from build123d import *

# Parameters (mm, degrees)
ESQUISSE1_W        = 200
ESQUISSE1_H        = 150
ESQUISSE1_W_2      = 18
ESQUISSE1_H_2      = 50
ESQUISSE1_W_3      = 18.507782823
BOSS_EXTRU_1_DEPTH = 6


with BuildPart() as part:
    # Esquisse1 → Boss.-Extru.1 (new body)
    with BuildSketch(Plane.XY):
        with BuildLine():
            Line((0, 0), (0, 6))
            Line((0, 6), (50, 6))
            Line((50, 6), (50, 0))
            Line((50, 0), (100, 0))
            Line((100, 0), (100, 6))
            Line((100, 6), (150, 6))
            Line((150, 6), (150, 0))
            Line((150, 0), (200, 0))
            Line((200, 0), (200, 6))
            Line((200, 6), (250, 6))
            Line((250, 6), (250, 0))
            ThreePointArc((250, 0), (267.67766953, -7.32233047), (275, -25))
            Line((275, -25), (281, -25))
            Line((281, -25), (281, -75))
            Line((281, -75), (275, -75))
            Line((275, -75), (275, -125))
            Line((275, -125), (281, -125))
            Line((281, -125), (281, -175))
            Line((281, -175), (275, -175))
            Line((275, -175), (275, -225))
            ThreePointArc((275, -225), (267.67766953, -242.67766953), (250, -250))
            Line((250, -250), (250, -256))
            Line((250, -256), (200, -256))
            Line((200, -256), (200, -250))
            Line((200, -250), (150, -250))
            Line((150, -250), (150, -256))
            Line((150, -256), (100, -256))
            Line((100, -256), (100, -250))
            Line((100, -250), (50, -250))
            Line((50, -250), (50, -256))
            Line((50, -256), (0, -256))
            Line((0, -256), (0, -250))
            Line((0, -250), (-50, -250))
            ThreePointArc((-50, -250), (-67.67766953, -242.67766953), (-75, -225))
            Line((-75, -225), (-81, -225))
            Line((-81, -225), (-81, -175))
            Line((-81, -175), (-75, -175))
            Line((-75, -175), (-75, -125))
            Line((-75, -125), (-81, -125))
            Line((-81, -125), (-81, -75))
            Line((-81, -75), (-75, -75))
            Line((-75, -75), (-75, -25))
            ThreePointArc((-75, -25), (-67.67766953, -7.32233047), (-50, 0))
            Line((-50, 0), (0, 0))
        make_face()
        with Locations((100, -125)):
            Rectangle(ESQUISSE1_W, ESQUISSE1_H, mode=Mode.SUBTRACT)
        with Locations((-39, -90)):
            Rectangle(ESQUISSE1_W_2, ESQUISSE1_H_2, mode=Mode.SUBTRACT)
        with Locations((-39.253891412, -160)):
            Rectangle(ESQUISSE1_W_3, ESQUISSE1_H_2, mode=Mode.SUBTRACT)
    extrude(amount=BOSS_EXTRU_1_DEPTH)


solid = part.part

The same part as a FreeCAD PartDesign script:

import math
import FreeCAD as App
import Part
import Sketcher
from FreeCAD import Vector

doc = App.newDocument("Part")
body = doc.addObject("PartDesign::Body", "Body")

# Sketch on XY plane
sketch1 = body.newObject("Sketcher::SketchObject", "Sketch")
sketch1.AttachmentSupport = (doc.getObject("XY_Plane"), [""])
sketch1.MapMode = "FlatFace"
sketch1.addGeometry([
    Part.LineSegment(Vector(0, 6, 0), Vector(0, 0, 0)),  # 0
    Part.LineSegment(Vector(0, 0, 0), Vector(-50, 0, 0)),  # 1
    Part.ArcOfCircle(Part.Circle(Vector(-50, -25, 0), Vector(0, 0, 1), 25), math.radians(90), math.radians(180)),  # 2
    Part.LineSegment(Vector(-75, -25, 0), Vector(-75, -75, 0)),  # 3
    Part.LineSegment(Vector(-75, -75, 0), Vector(-81, -75, 0)),  # 4
    Part.LineSegment(Vector(-81, -75, 0), Vector(-81, -125, 0)),  # 5
    Part.LineSegment(Vector(-81, -125, 0), Vector(-75, -125, 0)),  # 6
    Part.LineSegment(Vector(-75, -125, 0), Vector(-75, -175, 0)),  # 7
    Part.LineSegment(Vector(-75, -175, 0), Vector(-81, -175, 0)),  # 8
    Part.LineSegment(Vector(-81, -175, 0), Vector(-81, -225, 0)),  # 9
    Part.LineSegment(Vector(-81, -225, 0), Vector(-75, -225, 0)),  # 10
    Part.ArcOfCircle(Part.Circle(Vector(-50, -225, 0), Vector(0, 0, 1), 25), math.radians(180), math.radians(270)),  # 11
    Part.LineSegment(Vector(-50, -250, 0), Vector(0, -250, 0)),  # 12
    Part.LineSegment(Vector(0, -250, 0), Vector(0, -256, 0)),  # 13
    Part.LineSegment(Vector(0, -256, 0), Vector(50, -256, 0)),  # 14
    Part.LineSegment(Vector(50, -256, 0), Vector(50, -250, 0)),  # 15
    Part.LineSegment(Vector(50, -250, 0), Vector(100, -250, 0)),  # 16
    Part.LineSegment(Vector(100, -250, 0), Vector(100, -256, 0)),  # 17
    Part.LineSegment(Vector(100, -256, 0), Vector(150, -256, 0)),  # 18
    Part.LineSegment(Vector(150, -256, 0), Vector(150, -250, 0)),  # 19
    Part.LineSegment(Vector(150, -250, 0), Vector(200, -250, 0)),  # 20
    Part.LineSegment(Vector(200, -250, 0), Vector(200, -256, 0)),  # 21
    Part.LineSegment(Vector(200, -256, 0), Vector(250, -256, 0)),  # 22
    Part.LineSegment(Vector(250, -256, 0), Vector(250, -250, 0)),  # 23
    Part.ArcOfCircle(Part.Circle(Vector(250, -225, 0), Vector(0, 0, 1), 25), math.radians(-90), math.radians(0)),  # 24
    Part.LineSegment(Vector(275, -225, 0), Vector(275, -175, 0)),  # 25
    Part.LineSegment(Vector(275, -175, 0), Vector(281, -175, 0)),  # 26
    Part.LineSegment(Vector(281, -175, 0), Vector(281, -125, 0)),  # 27
    Part.LineSegment(Vector(281, -125, 0), Vector(275, -125, 0)),  # 28
    Part.LineSegment(Vector(275, -125, 0), Vector(275, -75, 0)),  # 29
    Part.LineSegment(Vector(275, -75, 0), Vector(281, -75, 0)),  # 30
    Part.LineSegment(Vector(281, -75, 0), Vector(281, -25, 0)),  # 31
    Part.LineSegment(Vector(281, -25, 0), Vector(275, -25, 0)),  # 32
    Part.ArcOfCircle(Part.Circle(Vector(250, -25, 0), Vector(0, 0, 1), 25), math.radians(0), math.radians(90)),  # 33
    Part.LineSegment(Vector(250, 0, 0), Vector(250, 6, 0)),  # 34
    Part.LineSegment(Vector(250, 6, 0), Vector(200, 6, 0)),  # 35
    Part.LineSegment(Vector(200, 6, 0), Vector(200, 0, 0)),  # 36
    Part.LineSegment(Vector(200, 0, 0), Vector(150, 0, 0)),  # 37
    Part.LineSegment(Vector(150, 0, 0), Vector(150, 6, 0)),  # 38
    Part.LineSegment(Vector(150, 6, 0), Vector(100, 6, 0)),  # 39
    Part.LineSegment(Vector(100, 6, 0), Vector(100, 0, 0)),  # 40
    Part.LineSegment(Vector(100, 0, 0), Vector(50, 0, 0)),  # 41
    Part.LineSegment(Vector(50, 0, 0), Vector(50, 6, 0)),  # 42
    Part.LineSegment(Vector(50, 6, 0), Vector(0, 6, 0)),  # 43
    Part.LineSegment(Vector(-49, -185, 0), Vector(-49, -135, 0)),  # 44
    Part.LineSegment(Vector(-49, -135, 0), Vector(-30, -135, 0)),  # 45
    Part.LineSegment(Vector(-30, -135, 0), Vector(-30, -185, 0)),  # 46
    Part.LineSegment(Vector(-30, -185, 0), Vector(-49, -185, 0)),  # 47
    Part.LineSegment(Vector(0, -200, 0), Vector(0, -50, 0)),  # 48
    Part.LineSegment(Vector(0, -50, 0), Vector(200, -50, 0)),  # 49
    Part.LineSegment(Vector(200, -50, 0), Vector(200, -200, 0)),  # 50
    Part.LineSegment(Vector(200, -200, 0), Vector(0, -200, 0)),  # 51
    Part.LineSegment(Vector(-48, -115, 0), Vector(-48, -65, 0)),  # 52
    Part.LineSegment(Vector(-48, -65, 0), Vector(-30, -65, 0)),  # 53
    Part.LineSegment(Vector(-30, -65, 0), Vector(-30, -115, 0)),  # 54
    Part.LineSegment(Vector(-30, -115, 0), Vector(-48, -115, 0)),  # 55
], False)
sketch1.addConstraint([
    Sketcher.Constraint("Coincident", 0, 2, 1, 1),
    Sketcher.Constraint("Tangent", 1, 2, 2, 1),
    Sketcher.Constraint("Tangent", 2, 2, 3, 1),
    Sketcher.Constraint("Coincident", 3, 2, 4, 1),
    Sketcher.Constraint("Coincident", 4, 2, 5, 1),
    Sketcher.Constraint("Coincident", 5, 2, 6, 1),
    Sketcher.Constraint("Coincident", 6, 2, 7, 1),
    Sketcher.Constraint("Coincident", 7, 2, 8, 1),
    Sketcher.Constraint("Coincident", 8, 2, 9, 1),
    Sketcher.Constraint("Coincident", 9, 2, 10, 1),
    Sketcher.Constraint("Coincident", 10, 2, 11, 1),
    Sketcher.Constraint("Tangent", 11, 2, 12, 1),
    Sketcher.Constraint("Coincident", 12, 2, 13, 1),
    Sketcher.Constraint("Coincident", 13, 2, 14, 1),
    Sketcher.Constraint("Coincident", 14, 2, 15, 1),
    Sketcher.Constraint("Coincident", 15, 2, 16, 1),
    Sketcher.Constraint("Coincident", 16, 2, 17, 1),
    Sketcher.Constraint("Coincident", 17, 2, 18, 1),
    Sketcher.Constraint("Coincident", 18, 2, 19, 1),
    Sketcher.Constraint("Coincident", 19, 2, 20, 1),
    Sketcher.Constraint("Coincident", 20, 2, 21, 1),
    Sketcher.Constraint("Coincident", 21, 2, 22, 1),
    Sketcher.Constraint("Coincident", 22, 2, 23, 1),
    Sketcher.Constraint("Coincident", 23, 2, 24, 1),
    Sketcher.Constraint("Tangent", 24, 2, 25, 1),
    Sketcher.Constraint("Coincident", 25, 2, 26, 1),
    Sketcher.Constraint("Coincident", 26, 2, 27, 1),
    Sketcher.Constraint("Coincident", 27, 2, 28, 1),
    Sketcher.Constraint("Coincident", 28, 2, 29, 1),
    Sketcher.Constraint("Coincident", 29, 2, 30, 1),
    Sketcher.Constraint("Coincident", 30, 2, 31, 1),
    Sketcher.Constraint("Coincident", 31, 2, 32, 1),
    Sketcher.Constraint("Coincident", 32, 2, 33, 1),
    Sketcher.Constraint("Coincident", 33, 2, 34, 1),
    Sketcher.Constraint("Coincident", 34, 2, 35, 1),
    Sketcher.Constraint("Coincident", 35, 2, 36, 1),
    Sketcher.Constraint("Coincident", 36, 2, 37, 1),
    Sketcher.Constraint("Coincident", 37, 2, 38, 1),
    Sketcher.Constraint("Coincident", 38, 2, 39, 1),
    Sketcher.Constraint("Coincident", 39, 2, 40, 1),
    Sketcher.Constraint("Coincident", 40, 2, 41, 1),
    Sketcher.Constraint("Coincident", 41, 2, 42, 1),
    Sketcher.Constraint("Coincident", 42, 2, 43, 1),
    Sketcher.Constraint("Coincident", 43, 2, 0, 1),
    Sketcher.Constraint("Coincident", 44, 2, 45, 1),
    Sketcher.Constraint("Coincident", 45, 2, 46, 1),
    Sketcher.Constraint("Coincident", 46, 2, 47, 1),
    Sketcher.Constraint("Coincident", 47, 2, 44, 1),
    Sketcher.Constraint("Coincident", 48, 2, 49, 1),
    Sketcher.Constraint("Coincident", 49, 2, 50, 1),
    Sketcher.Constraint("Coincident", 50, 2, 51, 1),
    Sketcher.Constraint("Coincident", 51, 2, 48, 1),
    Sketcher.Constraint("Coincident", 52, 2, 53, 1),
    Sketcher.Constraint("Coincident", 53, 2, 54, 1),
    Sketcher.Constraint("Coincident", 54, 2, 55, 1),
    Sketcher.Constraint("Coincident", 55, 2, 52, 1),
    Sketcher.Constraint("Vertical", 0),
    Sketcher.Constraint("Horizontal", 1),
    Sketcher.Constraint("Vertical", 3),
    Sketcher.Constraint("Horizontal", 4),
    Sketcher.Constraint("Vertical", 5),
    Sketcher.Constraint("Horizontal", 6),
    Sketcher.Constraint("Vertical", 7),
    Sketcher.Constraint("Horizontal", 8),
    Sketcher.Constraint("Vertical", 9),
    Sketcher.Constraint("Horizontal", 10),
    Sketcher.Constraint("Horizontal", 12),
    Sketcher.Constraint("Vertical", 13),
    Sketcher.Constraint("Horizontal", 14),
    Sketcher.Constraint("Vertical", 15),
    Sketcher.Constraint("Horizontal", 16),
    Sketcher.Constraint("Vertical", 17),
    Sketcher.Constraint("Horizontal", 18),
    Sketcher.Constraint("Vertical", 19),
    Sketcher.Constraint("Horizontal", 20),
    Sketcher.Constraint("Vertical", 21),
    Sketcher.Constraint("Horizontal", 22),
    Sketcher.Constraint("Vertical", 23),
    Sketcher.Constraint("Vertical", 25),
    Sketcher.Constraint("Horizontal", 26),
    Sketcher.Constraint("Vertical", 27),
    Sketcher.Constraint("Horizontal", 28),
    Sketcher.Constraint("Vertical", 29),
    Sketcher.Constraint("Horizontal", 30),
    Sketcher.Constraint("Vertical", 31),
    Sketcher.Constraint("Horizontal", 32),
    Sketcher.Constraint("Vertical", 34),
    Sketcher.Constraint("Horizontal", 35),
    Sketcher.Constraint("Vertical", 36),
    Sketcher.Constraint("Horizontal", 37),
    Sketcher.Constraint("Vertical", 38),
    Sketcher.Constraint("Horizontal", 39),
    Sketcher.Constraint("Vertical", 40),
    Sketcher.Constraint("Horizontal", 41),
    Sketcher.Constraint("Vertical", 42),
    Sketcher.Constraint("Horizontal", 43),
    Sketcher.Constraint("Vertical", 44),
    Sketcher.Constraint("Horizontal", 45),
    Sketcher.Constraint("Vertical", 46),
    Sketcher.Constraint("Horizontal", 47),
    Sketcher.Constraint("Vertical", 48),
    Sketcher.Constraint("Horizontal", 49),
    Sketcher.Constraint("Vertical", 50),
    Sketcher.Constraint("Horizontal", 51),
    Sketcher.Constraint("Vertical", 52),
    Sketcher.Constraint("Horizontal", 53),
    Sketcher.Constraint("Vertical", 54),
    Sketcher.Constraint("Horizontal", 55),
    Sketcher.Constraint("Coincident", 0, 2, -1, 1),
    Sketcher.Constraint("Equal", 2, 11),
    Sketcher.Constraint("Equal", 11, 24),
    Sketcher.Constraint("Equal", 24, 33),
    Sketcher.Constraint("Symmetric", 1, 2, 41, 2, -1, 1),
    Sketcher.Constraint("Symmetric", 11, 2, 15, 2, -2),
    Sketcher.Constraint("PointOnObject", 12, 2, -2),
    Sketcher.Constraint("PointOnObject", 33, 2, -1),
    Sketcher.Constraint("PointOnObject", 36, 2, -1),
    Sketcher.Constraint("PointOnObject", 48, 2, -2),
    Sketcher.Constraint("Horizontal", 11, 3, 24, 3),
    Sketcher.Constraint("Horizontal", 24, 3, 9, 2),
    Sketcher.Constraint("Horizontal", 14, 2, 17, 2),
    Sketcher.Constraint("Horizontal", 16, 2, 19, 2),
    Sketcher.Constraint("Horizontal", 18, 2, 21, 2),
    Sketcher.Constraint("Horizontal", 8, 2, 25, 2),
    Sketcher.Constraint("Horizontal", 6, 2, 27, 2),
    Sketcher.Constraint("Horizontal", 4, 2, 29, 2),
    Sketcher.Constraint("Horizontal", 2, 2, 31, 2),
    Sketcher.Constraint("Horizontal", 35, 2, 38, 2),
    Sketcher.Constraint("Horizontal", 39, 2, 42, 2),
    Sketcher.Constraint("Vertical", 2, 3, 11, 3),
    Sketcher.Constraint("Vertical", 24, 3, 33, 3),
    Sketcher.Constraint("Vertical", 3, 2, 6, 2),
    Sketcher.Constraint("Vertical", 5, 2, 8, 2),
    Sketcher.Constraint("Vertical", 33, 3, 22, 2),
    Sketcher.Constraint("Vertical", 25, 2, 28, 2),
    Sketcher.Constraint("Vertical", 27, 2, 30, 2),
    Sketcher.Constraint("Vertical", 23, 2, 33, 2),
    Sketcher.Constraint("Vertical", 21, 2, 35, 2),
    Sketcher.Constraint("Vertical", 19, 2, 37, 2),
    Sketcher.Constraint("Vertical", 17, 2, 39, 2),
    Sketcher.Constraint("Vertical", 36, 2, 49, 2),
    Sketcher.Constraint("Vertical", 46, 2, 53, 2),
    Sketcher.Constraint("Equal", 14, 16),
    Sketcher.Constraint("Equal", 16, 18),
    Sketcher.Constraint("Equal", 18, 20),
    Sketcher.Constraint("Equal", 20, 22),
    Sketcher.Constraint("Equal", 10, 26),
    Sketcher.Constraint("Equal", 32, 0),
    Sketcher.Constraint("Equal", 43, 3),
    Sketcher.Constraint("Equal", 3, 5),
    Sketcher.Constraint("Equal", 5, 7),
    Sketcher.Constraint("Equal", 7, 9),
    Sketcher.Constraint("Equal", 0, 13),
    Sketcher.Constraint("Equal", 31, 44),
    Sketcher.Constraint("Equal", 46, 52),
    Sketcher.Constraint("Radius", 2, 25.0),
    Sketcher.Constraint("DistanceX", 1, 2, 1, 1, 50.0),
    Sketcher.Constraint("DistanceX", 4, 2, 4, 1, 6.0),
    Sketcher.Constraint("DistanceX", 53, 1, 53, 2, 18.0),
    Sketcher.Constraint("DistanceY", 48, 1, 48, 2, 150.0),
    Sketcher.Constraint("DistanceY", 44, 2, -1, 1, 135.0),
    Sketcher.Constraint("DistanceX", 45, 2, -1, 1, 30.0),
    Sketcher.Constraint("DistanceY", 48, 2, -1, 1, 50.0),
    Sketcher.Constraint("DistanceY", 52, 2, -1, 1, 65.0),
    Sketcher.Constraint("DistanceX", 45, 1, 45, 2, 18.507783),
])
pad1 = body.newObject("PartDesign::Pad", "Pad")
pad1.Profile = sketch1
pad1.Length = 6

doc.recompute()
